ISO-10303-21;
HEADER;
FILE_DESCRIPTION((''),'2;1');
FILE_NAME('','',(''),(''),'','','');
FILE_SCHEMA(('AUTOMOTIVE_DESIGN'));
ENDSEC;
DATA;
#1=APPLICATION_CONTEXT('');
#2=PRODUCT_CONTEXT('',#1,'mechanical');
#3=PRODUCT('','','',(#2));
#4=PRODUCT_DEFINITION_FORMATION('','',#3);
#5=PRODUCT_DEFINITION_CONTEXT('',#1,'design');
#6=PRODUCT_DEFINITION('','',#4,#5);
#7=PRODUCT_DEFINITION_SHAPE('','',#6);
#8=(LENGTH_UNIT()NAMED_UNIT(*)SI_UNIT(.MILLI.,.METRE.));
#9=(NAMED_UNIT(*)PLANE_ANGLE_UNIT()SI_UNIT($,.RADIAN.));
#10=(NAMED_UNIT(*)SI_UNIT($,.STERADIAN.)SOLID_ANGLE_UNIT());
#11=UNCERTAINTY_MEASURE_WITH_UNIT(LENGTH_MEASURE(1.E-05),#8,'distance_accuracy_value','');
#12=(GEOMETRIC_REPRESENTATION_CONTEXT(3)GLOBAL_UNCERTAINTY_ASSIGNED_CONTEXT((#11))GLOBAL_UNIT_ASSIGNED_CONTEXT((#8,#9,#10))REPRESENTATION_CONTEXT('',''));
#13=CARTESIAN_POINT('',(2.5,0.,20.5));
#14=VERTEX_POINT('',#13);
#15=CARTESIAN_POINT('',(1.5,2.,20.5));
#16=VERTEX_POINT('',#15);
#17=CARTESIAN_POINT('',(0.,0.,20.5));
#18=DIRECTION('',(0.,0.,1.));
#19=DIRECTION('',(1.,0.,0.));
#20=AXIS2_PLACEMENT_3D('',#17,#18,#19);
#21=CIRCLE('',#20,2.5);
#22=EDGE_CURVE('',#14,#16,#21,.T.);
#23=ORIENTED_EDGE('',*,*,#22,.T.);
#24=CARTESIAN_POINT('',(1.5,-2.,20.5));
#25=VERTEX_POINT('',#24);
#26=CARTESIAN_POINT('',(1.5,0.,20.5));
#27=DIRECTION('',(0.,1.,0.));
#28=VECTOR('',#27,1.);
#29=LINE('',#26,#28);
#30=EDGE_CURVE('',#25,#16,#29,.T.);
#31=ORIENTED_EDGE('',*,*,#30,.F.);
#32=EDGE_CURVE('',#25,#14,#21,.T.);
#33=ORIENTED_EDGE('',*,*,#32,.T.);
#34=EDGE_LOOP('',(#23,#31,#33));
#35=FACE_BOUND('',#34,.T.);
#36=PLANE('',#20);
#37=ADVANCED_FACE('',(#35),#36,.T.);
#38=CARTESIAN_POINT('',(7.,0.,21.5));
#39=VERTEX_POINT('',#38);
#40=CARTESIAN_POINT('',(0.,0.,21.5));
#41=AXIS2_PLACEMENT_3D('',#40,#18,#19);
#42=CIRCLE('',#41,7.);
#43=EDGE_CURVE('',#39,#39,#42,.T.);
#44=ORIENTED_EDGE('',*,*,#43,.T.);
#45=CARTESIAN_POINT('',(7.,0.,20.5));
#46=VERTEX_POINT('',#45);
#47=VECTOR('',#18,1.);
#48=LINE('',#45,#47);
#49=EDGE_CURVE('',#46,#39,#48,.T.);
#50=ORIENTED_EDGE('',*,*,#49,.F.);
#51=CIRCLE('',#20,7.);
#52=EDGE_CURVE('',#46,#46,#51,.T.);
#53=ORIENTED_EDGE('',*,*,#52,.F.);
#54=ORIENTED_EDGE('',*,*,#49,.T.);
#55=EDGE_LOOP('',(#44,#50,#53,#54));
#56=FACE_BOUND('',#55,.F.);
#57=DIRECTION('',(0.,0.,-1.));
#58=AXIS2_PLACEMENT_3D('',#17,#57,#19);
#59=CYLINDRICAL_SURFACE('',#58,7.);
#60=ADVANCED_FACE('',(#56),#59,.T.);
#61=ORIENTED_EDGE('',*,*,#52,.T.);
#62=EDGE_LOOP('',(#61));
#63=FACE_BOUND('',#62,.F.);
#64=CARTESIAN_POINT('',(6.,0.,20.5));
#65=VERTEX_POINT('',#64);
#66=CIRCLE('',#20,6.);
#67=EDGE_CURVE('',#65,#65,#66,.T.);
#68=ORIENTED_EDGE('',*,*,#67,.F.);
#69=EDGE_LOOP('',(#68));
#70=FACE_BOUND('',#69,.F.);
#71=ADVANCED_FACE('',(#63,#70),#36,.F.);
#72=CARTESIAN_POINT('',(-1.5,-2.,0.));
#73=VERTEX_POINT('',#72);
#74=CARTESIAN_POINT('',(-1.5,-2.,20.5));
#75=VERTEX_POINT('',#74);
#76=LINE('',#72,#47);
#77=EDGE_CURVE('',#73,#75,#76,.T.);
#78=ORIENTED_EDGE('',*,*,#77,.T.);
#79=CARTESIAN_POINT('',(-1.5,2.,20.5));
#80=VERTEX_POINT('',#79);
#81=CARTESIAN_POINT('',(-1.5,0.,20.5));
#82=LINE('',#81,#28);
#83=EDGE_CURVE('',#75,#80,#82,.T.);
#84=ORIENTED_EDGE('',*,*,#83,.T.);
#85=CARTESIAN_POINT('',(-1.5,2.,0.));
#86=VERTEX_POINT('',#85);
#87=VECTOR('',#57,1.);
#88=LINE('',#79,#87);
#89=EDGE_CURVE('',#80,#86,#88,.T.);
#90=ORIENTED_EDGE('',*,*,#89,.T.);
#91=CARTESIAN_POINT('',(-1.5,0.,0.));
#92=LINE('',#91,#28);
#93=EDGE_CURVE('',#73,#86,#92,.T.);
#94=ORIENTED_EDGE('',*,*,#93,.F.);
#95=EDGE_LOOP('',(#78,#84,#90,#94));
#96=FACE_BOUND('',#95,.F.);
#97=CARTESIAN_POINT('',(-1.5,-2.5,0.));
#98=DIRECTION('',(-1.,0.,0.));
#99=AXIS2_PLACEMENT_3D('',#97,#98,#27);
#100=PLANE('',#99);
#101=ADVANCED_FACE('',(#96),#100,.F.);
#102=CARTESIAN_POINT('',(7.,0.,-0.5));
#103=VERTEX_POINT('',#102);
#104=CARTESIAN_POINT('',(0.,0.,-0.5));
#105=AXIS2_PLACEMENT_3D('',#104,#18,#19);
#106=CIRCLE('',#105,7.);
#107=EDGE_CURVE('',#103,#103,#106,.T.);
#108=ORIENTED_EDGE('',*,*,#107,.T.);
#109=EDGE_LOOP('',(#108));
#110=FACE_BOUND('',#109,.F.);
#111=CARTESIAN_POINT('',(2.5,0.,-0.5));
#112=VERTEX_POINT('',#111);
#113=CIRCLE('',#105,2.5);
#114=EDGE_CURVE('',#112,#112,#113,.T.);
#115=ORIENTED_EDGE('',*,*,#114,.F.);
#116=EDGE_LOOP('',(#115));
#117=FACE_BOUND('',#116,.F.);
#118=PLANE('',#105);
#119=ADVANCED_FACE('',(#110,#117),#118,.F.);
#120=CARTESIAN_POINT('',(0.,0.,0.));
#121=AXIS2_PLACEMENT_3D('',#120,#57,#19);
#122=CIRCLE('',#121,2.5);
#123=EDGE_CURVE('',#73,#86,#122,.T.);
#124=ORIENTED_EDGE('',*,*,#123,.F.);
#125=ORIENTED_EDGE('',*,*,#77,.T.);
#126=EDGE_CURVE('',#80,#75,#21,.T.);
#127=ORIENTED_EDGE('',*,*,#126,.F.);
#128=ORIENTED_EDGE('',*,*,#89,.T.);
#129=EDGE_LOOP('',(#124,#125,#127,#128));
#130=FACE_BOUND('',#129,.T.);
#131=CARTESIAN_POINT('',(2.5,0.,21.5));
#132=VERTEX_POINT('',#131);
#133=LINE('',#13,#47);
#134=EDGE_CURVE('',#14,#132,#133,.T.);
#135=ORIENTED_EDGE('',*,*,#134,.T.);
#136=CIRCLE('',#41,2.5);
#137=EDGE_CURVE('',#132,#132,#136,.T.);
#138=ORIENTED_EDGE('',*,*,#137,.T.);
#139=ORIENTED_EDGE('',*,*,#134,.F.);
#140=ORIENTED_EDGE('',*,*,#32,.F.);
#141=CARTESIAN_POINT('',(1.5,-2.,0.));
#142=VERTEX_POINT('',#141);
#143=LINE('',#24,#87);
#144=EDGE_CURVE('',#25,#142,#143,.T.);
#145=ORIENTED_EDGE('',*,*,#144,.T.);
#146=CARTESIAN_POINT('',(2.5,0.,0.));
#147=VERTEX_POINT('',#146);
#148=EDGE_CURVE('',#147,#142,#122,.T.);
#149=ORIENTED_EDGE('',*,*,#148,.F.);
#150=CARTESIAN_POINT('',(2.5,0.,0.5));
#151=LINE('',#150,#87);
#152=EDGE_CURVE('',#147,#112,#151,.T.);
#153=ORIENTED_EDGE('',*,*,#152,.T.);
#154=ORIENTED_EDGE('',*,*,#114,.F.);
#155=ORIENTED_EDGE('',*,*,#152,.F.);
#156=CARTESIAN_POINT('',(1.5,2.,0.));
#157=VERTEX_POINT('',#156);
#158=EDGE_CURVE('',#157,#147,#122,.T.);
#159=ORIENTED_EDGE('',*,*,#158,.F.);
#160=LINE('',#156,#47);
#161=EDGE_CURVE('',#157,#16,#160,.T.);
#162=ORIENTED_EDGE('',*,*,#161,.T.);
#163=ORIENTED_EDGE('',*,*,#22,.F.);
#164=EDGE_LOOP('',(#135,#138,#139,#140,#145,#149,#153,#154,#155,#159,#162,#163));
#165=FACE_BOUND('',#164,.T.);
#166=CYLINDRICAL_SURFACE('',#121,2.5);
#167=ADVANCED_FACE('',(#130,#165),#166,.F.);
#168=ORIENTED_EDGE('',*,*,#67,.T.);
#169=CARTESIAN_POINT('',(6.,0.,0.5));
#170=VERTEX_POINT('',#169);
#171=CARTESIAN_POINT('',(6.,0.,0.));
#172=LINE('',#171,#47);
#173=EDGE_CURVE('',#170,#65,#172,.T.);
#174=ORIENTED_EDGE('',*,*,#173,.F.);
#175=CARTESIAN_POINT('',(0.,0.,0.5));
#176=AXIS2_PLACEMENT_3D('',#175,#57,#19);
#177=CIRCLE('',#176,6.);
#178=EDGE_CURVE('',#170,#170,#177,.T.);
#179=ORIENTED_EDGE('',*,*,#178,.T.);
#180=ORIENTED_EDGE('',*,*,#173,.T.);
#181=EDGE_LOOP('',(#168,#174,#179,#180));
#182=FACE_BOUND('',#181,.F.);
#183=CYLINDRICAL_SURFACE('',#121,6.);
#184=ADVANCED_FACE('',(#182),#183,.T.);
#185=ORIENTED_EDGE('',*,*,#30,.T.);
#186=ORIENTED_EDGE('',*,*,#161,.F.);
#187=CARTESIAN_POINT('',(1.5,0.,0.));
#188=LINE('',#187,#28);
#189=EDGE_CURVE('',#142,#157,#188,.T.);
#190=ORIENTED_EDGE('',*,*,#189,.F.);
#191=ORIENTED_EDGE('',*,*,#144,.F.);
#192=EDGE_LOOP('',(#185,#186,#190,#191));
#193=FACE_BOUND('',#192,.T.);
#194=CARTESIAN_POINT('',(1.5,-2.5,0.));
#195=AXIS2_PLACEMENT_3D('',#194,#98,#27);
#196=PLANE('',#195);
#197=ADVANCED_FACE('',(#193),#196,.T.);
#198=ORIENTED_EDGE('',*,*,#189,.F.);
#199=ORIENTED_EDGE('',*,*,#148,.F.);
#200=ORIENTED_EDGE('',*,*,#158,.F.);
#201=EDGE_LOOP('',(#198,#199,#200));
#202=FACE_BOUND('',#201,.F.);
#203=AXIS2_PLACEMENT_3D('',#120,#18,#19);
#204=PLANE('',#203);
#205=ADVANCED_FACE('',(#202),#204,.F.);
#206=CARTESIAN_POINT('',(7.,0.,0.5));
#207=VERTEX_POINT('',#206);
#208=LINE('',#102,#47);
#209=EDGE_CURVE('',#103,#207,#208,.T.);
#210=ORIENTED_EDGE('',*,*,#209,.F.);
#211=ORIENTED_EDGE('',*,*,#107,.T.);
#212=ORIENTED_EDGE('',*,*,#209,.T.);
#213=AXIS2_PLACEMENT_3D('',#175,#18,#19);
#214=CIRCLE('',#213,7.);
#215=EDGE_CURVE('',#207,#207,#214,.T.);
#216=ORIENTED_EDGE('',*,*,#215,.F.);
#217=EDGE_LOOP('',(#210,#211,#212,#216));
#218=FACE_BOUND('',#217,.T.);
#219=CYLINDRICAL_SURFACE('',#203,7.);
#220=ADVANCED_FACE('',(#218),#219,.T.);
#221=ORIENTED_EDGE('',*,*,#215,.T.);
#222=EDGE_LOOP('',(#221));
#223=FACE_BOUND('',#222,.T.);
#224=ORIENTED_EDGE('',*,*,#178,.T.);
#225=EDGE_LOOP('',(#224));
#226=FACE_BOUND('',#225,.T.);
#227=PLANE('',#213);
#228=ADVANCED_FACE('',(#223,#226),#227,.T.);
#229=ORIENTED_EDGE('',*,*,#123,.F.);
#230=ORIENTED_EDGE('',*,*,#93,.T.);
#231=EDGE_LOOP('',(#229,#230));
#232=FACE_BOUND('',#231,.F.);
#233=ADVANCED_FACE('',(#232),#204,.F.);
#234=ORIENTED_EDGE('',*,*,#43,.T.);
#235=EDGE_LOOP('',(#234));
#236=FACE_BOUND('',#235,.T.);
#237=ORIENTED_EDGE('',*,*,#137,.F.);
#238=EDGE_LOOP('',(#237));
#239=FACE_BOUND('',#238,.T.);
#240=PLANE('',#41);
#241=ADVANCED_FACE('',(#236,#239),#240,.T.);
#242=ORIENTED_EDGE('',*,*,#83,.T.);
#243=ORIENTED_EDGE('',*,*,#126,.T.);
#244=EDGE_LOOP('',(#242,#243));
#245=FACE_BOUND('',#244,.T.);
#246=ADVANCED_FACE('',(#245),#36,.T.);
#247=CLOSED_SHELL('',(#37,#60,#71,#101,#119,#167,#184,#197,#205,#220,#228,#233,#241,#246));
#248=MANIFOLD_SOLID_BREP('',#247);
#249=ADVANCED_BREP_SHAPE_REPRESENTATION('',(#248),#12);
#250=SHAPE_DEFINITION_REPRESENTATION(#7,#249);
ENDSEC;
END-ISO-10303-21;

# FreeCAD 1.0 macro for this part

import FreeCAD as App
import Part
import Sketcher
Q = App.Units.Quantity

doc = App.newDocument("Part")
body = doc.addObject("PartDesign::Body", "Body")

# Sketch on XY plane
sketch1 = body.newObject("Sketcher::SketchObject", "Sketch")
sketch1.AttachmentSupport = (doc.getObject("XY_Plane"), [""])
sketch1.MapMode = "FlatFace"
sketch1.addGeometry([
    Part.Circle(App.Vector(0, 0, 0), App.Vector(0, 0, 1), 6),
    Part.Circle(App.Vector(0, 0, 0), App.Vector(0, 0, 1), 2.5),
], False)
sketch1.addConstraint([
    Sketcher.Constraint("Coincident", 0, 3, -1, 1),
    Sketcher.Constraint("Coincident", 1, 3, -1, 1),
    Sketcher.Constraint("Diameter", 0, Q("12 mm")),
    Sketcher.Constraint("Diameter", 1, Q("5 mm")),
])
pad1 = body.newObject("PartDesign::Pad", "Pad")
pad1.Profile = sketch1
pad1.Length = 20.5

# Sketch on XY plane
sketch2 = body.newObject("Sketcher::SketchObject", "Sketch001")
sketch2.AttachmentSupport = (doc.getObject("XY_Plane"), [""])
sketch2.MapMode = "FlatFace"
sketch2.addGeometry([
    Part.LineSegment(App.Vector(-2.8, 2.9, 0), App.Vector(-2.8, -3.1, 0)),  # 0
    Part.LineSegment(App.Vector(-2.8, -3.1, 0), App.Vector(2.8, -3.1, 0)),  # 1
    Part.LineSegment(App.Vector(2.8, -3.1, 0), App.Vector(2.8, 2.9, 0)),  # 2
    Part.LineSegment(App.Vector(2.8, 2.9, 0), App.Vector(-2.8, 2.9, 0)),  # 3
    Part.LineSegment(App.Vector(1.5, -2.5, 0), App.Vector(-1.5, -2.5, 0)),  # 4
    Part.LineSegment(App.Vector(-1.5, -2.5, 0), App.Vector(-1.5, 2.5, 0)),  # 5
    Part.LineSegment(App.Vector(-1.5, 2.5, 0), App.Vector(1.5, 2.5, 0)),  # 6
    Part.LineSegment(App.Vector(1.5, 2.5, 0), App.Vector(1.5, -2.5, 0)),  # 7
], False)
sketch2.addConstraint([
    Sketcher.Constraint("Coincident", 0, 2, 1, 1),
    Sketcher.Constraint("Coincident", 1, 2, 2, 1),
    Sketcher.Constraint("Coincident", 2, 2, 3, 1),
    Sketcher.Constraint("Coincident", 3, 2, 0, 1),
    Sketcher.Constraint("Coincident", 4, 2, 5, 1),
    Sketcher.Constraint("Coincident", 5, 2, 6, 1),
    Sketcher.Constraint("Coincident", 6, 2, 7, 1),
    Sketcher.Constraint("Coincident", 7, 2, 4, 1),
    Sketcher.Constraint("Vertical", 0),
    Sketcher.Constraint("Horizontal", 1),
    Sketcher.Constraint("Vertical", 2),
    Sketcher.Constraint("Horizontal", 3),
    Sketcher.Constraint("Horizontal", 4),
    Sketcher.Constraint("Vertical", 5),
    Sketcher.Constraint("Horizontal", 6),
    Sketcher.Constraint("Vertical", 7),
    Sketcher.Constraint("Symmetric", 4, 2, 6, 2, -1, 1),
    Sketcher.Constraint("DistanceX", 4, 2, 4, 1, Q("3 mm")),
    Sketcher.Constraint("DistanceY", 5, 1, 5, 2, Q("5 mm")),
    Sketcher.Constraint("DistanceY", 0, 2, 0, 1, Q("5.932069 mm")),
    Sketcher.Constraint("DistanceX", 1, 1, 1, 2, Q("5.557975 mm")),
    Sketcher.Constraint("DistanceX", 0, 2, -1, 1, Q("2.770551 mm")),
    Sketcher.Constraint("DistanceY", 0, 2, -1, 1, Q("3.072356 mm")),
])
pad2 = body.newObject("PartDesign::Pad", "Pad001")
pad2.Profile = sketch2
pad2.Length = 20.5

# Sketch on XY plane
sketch3 = body.newObject("Sketcher::SketchObject", "Sketch002")
sketch3.AttachmentSupport = (doc.getObject("XY_Plane"), [""])
sketch3.MapMode = "FlatFace"
sketch3.AttachmentOffset = App.Placement(App.Vector(0, 0, 20.5), App.Rotation())
sketch3.addGeometry([
    Part.Circle(App.Vector(0, 0, 0), App.Vector(0, 0, 1), 7),
    Part.Circle(App.Vector(0, 0, 0), App.Vector(0, 0, 1), 2.5),
], False)
sketch3.addConstraint([
    Sketcher.Constraint("Coincident", 0, 3, -1, 1),
    Sketcher.Constraint("Coincident", 1, 3, -1, 1),
    Sketcher.Constraint("Diameter", 0, Q("14 mm")),
    Sketcher.Constraint("Diameter", 1, Q("5 mm")),
])
pad3 = body.newObject("PartDesign::Pad", "Pad002")
pad3.Profile = sketch3
pad3.Length = 1

# Sketch on XY plane
sketch4 = body.newObject("Sketcher::SketchObject", "Sketch003")
sketch4.AttachmentSupport = (doc.getObject("XY_Plane"), [""])
sketch4.MapMode = "FlatFace"
sketch4.addGeometry([
    Part.Circle(App.Vector(0, 0, 0), App.Vector(0, 0, 1), 7),
    Part.Circle(App.Vector(0, 0, 0), App.Vector(0, 0, 1), 2.5),
], False)
sketch4.addConstraint([
    Sketcher.Constraint("Coincident", 0, 3, -1, 1),
    Sketcher.Constraint("Coincident", 1, 3, -1, 1),
    Sketcher.Constraint("Diameter", 0, Q("14 mm")),
    Sketcher.Constraint("Diameter", 1, Q("5 mm")),
])
pad4 = body.newObject("PartDesign::Pad", "Pad003")
pad4.Profile = sketch4
pad4.Length = 1
pad4.Midplane = True

doc.recompute()
